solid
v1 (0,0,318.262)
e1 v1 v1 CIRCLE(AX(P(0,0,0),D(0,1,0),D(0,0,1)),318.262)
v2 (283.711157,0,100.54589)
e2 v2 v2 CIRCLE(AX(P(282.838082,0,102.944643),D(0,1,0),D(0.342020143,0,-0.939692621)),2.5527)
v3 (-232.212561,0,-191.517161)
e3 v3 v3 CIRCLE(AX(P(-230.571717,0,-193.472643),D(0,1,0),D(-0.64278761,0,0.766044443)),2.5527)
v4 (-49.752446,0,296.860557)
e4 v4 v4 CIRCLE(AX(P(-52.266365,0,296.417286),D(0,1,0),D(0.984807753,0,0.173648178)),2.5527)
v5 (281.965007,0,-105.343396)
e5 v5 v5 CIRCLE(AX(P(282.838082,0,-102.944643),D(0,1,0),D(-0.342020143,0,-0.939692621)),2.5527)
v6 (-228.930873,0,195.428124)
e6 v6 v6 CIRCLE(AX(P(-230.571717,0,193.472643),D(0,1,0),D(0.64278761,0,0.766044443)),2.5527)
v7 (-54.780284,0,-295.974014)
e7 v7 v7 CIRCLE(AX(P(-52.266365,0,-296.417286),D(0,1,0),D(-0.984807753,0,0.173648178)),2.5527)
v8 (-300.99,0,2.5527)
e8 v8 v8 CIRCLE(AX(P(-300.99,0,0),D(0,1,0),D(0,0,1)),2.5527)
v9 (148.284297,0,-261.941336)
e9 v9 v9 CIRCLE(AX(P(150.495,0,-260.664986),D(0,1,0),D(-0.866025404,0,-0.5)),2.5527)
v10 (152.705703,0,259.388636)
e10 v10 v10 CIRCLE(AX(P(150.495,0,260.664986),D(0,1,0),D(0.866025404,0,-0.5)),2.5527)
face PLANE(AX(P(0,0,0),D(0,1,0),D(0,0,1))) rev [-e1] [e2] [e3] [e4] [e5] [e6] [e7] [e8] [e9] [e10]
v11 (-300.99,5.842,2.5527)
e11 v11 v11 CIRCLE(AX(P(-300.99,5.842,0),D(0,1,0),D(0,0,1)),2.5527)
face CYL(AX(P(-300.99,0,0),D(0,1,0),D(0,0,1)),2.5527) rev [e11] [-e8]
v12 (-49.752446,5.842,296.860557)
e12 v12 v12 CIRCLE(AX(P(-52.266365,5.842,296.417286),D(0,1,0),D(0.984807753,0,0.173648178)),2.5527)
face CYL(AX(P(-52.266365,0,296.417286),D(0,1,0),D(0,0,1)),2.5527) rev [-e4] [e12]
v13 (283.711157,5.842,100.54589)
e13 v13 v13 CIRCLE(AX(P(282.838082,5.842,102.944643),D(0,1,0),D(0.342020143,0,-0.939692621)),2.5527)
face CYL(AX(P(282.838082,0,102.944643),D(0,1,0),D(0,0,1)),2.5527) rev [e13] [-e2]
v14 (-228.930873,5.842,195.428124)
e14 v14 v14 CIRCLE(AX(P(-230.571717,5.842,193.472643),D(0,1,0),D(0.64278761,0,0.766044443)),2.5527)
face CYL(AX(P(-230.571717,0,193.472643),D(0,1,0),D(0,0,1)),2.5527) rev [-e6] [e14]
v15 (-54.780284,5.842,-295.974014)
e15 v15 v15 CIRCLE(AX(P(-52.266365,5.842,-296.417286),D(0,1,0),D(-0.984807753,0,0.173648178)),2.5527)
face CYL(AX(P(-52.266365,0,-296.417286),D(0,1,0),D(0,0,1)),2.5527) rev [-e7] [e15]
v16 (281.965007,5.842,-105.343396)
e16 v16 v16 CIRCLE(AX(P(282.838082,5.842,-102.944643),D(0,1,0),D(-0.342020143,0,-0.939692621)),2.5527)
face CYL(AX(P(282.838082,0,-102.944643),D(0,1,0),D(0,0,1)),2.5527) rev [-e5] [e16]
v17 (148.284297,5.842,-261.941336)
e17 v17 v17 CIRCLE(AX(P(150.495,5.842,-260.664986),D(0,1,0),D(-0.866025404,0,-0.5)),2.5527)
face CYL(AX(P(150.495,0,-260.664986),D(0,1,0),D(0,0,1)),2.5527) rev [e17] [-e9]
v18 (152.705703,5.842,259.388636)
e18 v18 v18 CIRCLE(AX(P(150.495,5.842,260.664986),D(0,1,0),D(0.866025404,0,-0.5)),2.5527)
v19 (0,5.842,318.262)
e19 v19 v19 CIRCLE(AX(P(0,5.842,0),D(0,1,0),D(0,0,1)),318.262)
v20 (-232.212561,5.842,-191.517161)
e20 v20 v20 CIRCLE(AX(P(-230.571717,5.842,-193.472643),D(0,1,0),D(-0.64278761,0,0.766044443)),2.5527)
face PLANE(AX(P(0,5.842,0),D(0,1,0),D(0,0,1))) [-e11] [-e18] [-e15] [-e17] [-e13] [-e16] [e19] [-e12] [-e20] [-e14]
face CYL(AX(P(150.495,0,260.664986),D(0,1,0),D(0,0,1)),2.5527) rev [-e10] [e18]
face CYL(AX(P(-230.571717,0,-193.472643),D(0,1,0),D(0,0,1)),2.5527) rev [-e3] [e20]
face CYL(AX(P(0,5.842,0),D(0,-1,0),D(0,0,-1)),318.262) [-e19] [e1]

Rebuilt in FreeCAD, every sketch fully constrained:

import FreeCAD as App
import Part
import Sketcher
Q = App.Units.Quantity

doc = App.newDocument("Part")
body = doc.addObject("PartDesign::Body", "Body")

sketch1 = body.newObject("Sketcher::SketchObject", "Sketch")
sketch1.AttachmentSupport = (doc.getObject("XZ_Plane"), [""])
sketch1.MapMode = "FlatFace"
sketch1.addGeometry(Part.Circle(App.Vector(0, 0, 0), App.Vector(0, 0, 1), 318.262), False)
sketch1.addConstraint([
    Sketcher.Constraint("Coincident", 0, 3, -1, 1),
    Sketcher.Constraint("Diameter", 0, Q("25.06 in")),
])
pad1 = body.newObject("PartDesign::Pad", "Pad")
pad1.Profile = sketch1
pad1.Length = Q("0.23 in")
pad1.Reversed = True

sketch2 = body.newObject("Sketcher::SketchObject", "Sketch001")
sketch2.AttachmentSupport = (doc.getObject("XZ_Plane"), [""])
sketch2.MapMode = "FlatFace"
sketch2.AttachmentOffset = App.Placement(App.Vector(0, 0, -0.23 * 25.4), App.Rotation())
sketch2.addGeometry(Part.Circle(App.Vector(-300.99, 0, 0), App.Vector(0, 0, 1), 2.5527), False)
sketch2.addConstraint([
    Sketcher.Constraint("PointOnObject", 0, 3, -1),
    Sketcher.Constraint("Diameter", 0, Q("0.201 in")),
    Sketcher.Constraint("DistanceX", 0, 3, -1, 1, Q("11.85 in")),
])
pocket1 = body.newObject("PartDesign::Pocket", "Pocket")
pocket1.Profile = sketch2
pocket1.Type = "ThroughAll"
pocket1.Reversed = True
doc.recompute()

polarpattern = body.newObject("PartDesign::PolarPattern", "PolarPattern")
polarpattern.Originals = [pocket1]
polarpattern.Axis = (doc.getObject("Y_Axis"), [""])
polarpattern.Angle = 360
polarpattern.Occurrences = 9
body.Tip = polarpattern

doc.recompute()
